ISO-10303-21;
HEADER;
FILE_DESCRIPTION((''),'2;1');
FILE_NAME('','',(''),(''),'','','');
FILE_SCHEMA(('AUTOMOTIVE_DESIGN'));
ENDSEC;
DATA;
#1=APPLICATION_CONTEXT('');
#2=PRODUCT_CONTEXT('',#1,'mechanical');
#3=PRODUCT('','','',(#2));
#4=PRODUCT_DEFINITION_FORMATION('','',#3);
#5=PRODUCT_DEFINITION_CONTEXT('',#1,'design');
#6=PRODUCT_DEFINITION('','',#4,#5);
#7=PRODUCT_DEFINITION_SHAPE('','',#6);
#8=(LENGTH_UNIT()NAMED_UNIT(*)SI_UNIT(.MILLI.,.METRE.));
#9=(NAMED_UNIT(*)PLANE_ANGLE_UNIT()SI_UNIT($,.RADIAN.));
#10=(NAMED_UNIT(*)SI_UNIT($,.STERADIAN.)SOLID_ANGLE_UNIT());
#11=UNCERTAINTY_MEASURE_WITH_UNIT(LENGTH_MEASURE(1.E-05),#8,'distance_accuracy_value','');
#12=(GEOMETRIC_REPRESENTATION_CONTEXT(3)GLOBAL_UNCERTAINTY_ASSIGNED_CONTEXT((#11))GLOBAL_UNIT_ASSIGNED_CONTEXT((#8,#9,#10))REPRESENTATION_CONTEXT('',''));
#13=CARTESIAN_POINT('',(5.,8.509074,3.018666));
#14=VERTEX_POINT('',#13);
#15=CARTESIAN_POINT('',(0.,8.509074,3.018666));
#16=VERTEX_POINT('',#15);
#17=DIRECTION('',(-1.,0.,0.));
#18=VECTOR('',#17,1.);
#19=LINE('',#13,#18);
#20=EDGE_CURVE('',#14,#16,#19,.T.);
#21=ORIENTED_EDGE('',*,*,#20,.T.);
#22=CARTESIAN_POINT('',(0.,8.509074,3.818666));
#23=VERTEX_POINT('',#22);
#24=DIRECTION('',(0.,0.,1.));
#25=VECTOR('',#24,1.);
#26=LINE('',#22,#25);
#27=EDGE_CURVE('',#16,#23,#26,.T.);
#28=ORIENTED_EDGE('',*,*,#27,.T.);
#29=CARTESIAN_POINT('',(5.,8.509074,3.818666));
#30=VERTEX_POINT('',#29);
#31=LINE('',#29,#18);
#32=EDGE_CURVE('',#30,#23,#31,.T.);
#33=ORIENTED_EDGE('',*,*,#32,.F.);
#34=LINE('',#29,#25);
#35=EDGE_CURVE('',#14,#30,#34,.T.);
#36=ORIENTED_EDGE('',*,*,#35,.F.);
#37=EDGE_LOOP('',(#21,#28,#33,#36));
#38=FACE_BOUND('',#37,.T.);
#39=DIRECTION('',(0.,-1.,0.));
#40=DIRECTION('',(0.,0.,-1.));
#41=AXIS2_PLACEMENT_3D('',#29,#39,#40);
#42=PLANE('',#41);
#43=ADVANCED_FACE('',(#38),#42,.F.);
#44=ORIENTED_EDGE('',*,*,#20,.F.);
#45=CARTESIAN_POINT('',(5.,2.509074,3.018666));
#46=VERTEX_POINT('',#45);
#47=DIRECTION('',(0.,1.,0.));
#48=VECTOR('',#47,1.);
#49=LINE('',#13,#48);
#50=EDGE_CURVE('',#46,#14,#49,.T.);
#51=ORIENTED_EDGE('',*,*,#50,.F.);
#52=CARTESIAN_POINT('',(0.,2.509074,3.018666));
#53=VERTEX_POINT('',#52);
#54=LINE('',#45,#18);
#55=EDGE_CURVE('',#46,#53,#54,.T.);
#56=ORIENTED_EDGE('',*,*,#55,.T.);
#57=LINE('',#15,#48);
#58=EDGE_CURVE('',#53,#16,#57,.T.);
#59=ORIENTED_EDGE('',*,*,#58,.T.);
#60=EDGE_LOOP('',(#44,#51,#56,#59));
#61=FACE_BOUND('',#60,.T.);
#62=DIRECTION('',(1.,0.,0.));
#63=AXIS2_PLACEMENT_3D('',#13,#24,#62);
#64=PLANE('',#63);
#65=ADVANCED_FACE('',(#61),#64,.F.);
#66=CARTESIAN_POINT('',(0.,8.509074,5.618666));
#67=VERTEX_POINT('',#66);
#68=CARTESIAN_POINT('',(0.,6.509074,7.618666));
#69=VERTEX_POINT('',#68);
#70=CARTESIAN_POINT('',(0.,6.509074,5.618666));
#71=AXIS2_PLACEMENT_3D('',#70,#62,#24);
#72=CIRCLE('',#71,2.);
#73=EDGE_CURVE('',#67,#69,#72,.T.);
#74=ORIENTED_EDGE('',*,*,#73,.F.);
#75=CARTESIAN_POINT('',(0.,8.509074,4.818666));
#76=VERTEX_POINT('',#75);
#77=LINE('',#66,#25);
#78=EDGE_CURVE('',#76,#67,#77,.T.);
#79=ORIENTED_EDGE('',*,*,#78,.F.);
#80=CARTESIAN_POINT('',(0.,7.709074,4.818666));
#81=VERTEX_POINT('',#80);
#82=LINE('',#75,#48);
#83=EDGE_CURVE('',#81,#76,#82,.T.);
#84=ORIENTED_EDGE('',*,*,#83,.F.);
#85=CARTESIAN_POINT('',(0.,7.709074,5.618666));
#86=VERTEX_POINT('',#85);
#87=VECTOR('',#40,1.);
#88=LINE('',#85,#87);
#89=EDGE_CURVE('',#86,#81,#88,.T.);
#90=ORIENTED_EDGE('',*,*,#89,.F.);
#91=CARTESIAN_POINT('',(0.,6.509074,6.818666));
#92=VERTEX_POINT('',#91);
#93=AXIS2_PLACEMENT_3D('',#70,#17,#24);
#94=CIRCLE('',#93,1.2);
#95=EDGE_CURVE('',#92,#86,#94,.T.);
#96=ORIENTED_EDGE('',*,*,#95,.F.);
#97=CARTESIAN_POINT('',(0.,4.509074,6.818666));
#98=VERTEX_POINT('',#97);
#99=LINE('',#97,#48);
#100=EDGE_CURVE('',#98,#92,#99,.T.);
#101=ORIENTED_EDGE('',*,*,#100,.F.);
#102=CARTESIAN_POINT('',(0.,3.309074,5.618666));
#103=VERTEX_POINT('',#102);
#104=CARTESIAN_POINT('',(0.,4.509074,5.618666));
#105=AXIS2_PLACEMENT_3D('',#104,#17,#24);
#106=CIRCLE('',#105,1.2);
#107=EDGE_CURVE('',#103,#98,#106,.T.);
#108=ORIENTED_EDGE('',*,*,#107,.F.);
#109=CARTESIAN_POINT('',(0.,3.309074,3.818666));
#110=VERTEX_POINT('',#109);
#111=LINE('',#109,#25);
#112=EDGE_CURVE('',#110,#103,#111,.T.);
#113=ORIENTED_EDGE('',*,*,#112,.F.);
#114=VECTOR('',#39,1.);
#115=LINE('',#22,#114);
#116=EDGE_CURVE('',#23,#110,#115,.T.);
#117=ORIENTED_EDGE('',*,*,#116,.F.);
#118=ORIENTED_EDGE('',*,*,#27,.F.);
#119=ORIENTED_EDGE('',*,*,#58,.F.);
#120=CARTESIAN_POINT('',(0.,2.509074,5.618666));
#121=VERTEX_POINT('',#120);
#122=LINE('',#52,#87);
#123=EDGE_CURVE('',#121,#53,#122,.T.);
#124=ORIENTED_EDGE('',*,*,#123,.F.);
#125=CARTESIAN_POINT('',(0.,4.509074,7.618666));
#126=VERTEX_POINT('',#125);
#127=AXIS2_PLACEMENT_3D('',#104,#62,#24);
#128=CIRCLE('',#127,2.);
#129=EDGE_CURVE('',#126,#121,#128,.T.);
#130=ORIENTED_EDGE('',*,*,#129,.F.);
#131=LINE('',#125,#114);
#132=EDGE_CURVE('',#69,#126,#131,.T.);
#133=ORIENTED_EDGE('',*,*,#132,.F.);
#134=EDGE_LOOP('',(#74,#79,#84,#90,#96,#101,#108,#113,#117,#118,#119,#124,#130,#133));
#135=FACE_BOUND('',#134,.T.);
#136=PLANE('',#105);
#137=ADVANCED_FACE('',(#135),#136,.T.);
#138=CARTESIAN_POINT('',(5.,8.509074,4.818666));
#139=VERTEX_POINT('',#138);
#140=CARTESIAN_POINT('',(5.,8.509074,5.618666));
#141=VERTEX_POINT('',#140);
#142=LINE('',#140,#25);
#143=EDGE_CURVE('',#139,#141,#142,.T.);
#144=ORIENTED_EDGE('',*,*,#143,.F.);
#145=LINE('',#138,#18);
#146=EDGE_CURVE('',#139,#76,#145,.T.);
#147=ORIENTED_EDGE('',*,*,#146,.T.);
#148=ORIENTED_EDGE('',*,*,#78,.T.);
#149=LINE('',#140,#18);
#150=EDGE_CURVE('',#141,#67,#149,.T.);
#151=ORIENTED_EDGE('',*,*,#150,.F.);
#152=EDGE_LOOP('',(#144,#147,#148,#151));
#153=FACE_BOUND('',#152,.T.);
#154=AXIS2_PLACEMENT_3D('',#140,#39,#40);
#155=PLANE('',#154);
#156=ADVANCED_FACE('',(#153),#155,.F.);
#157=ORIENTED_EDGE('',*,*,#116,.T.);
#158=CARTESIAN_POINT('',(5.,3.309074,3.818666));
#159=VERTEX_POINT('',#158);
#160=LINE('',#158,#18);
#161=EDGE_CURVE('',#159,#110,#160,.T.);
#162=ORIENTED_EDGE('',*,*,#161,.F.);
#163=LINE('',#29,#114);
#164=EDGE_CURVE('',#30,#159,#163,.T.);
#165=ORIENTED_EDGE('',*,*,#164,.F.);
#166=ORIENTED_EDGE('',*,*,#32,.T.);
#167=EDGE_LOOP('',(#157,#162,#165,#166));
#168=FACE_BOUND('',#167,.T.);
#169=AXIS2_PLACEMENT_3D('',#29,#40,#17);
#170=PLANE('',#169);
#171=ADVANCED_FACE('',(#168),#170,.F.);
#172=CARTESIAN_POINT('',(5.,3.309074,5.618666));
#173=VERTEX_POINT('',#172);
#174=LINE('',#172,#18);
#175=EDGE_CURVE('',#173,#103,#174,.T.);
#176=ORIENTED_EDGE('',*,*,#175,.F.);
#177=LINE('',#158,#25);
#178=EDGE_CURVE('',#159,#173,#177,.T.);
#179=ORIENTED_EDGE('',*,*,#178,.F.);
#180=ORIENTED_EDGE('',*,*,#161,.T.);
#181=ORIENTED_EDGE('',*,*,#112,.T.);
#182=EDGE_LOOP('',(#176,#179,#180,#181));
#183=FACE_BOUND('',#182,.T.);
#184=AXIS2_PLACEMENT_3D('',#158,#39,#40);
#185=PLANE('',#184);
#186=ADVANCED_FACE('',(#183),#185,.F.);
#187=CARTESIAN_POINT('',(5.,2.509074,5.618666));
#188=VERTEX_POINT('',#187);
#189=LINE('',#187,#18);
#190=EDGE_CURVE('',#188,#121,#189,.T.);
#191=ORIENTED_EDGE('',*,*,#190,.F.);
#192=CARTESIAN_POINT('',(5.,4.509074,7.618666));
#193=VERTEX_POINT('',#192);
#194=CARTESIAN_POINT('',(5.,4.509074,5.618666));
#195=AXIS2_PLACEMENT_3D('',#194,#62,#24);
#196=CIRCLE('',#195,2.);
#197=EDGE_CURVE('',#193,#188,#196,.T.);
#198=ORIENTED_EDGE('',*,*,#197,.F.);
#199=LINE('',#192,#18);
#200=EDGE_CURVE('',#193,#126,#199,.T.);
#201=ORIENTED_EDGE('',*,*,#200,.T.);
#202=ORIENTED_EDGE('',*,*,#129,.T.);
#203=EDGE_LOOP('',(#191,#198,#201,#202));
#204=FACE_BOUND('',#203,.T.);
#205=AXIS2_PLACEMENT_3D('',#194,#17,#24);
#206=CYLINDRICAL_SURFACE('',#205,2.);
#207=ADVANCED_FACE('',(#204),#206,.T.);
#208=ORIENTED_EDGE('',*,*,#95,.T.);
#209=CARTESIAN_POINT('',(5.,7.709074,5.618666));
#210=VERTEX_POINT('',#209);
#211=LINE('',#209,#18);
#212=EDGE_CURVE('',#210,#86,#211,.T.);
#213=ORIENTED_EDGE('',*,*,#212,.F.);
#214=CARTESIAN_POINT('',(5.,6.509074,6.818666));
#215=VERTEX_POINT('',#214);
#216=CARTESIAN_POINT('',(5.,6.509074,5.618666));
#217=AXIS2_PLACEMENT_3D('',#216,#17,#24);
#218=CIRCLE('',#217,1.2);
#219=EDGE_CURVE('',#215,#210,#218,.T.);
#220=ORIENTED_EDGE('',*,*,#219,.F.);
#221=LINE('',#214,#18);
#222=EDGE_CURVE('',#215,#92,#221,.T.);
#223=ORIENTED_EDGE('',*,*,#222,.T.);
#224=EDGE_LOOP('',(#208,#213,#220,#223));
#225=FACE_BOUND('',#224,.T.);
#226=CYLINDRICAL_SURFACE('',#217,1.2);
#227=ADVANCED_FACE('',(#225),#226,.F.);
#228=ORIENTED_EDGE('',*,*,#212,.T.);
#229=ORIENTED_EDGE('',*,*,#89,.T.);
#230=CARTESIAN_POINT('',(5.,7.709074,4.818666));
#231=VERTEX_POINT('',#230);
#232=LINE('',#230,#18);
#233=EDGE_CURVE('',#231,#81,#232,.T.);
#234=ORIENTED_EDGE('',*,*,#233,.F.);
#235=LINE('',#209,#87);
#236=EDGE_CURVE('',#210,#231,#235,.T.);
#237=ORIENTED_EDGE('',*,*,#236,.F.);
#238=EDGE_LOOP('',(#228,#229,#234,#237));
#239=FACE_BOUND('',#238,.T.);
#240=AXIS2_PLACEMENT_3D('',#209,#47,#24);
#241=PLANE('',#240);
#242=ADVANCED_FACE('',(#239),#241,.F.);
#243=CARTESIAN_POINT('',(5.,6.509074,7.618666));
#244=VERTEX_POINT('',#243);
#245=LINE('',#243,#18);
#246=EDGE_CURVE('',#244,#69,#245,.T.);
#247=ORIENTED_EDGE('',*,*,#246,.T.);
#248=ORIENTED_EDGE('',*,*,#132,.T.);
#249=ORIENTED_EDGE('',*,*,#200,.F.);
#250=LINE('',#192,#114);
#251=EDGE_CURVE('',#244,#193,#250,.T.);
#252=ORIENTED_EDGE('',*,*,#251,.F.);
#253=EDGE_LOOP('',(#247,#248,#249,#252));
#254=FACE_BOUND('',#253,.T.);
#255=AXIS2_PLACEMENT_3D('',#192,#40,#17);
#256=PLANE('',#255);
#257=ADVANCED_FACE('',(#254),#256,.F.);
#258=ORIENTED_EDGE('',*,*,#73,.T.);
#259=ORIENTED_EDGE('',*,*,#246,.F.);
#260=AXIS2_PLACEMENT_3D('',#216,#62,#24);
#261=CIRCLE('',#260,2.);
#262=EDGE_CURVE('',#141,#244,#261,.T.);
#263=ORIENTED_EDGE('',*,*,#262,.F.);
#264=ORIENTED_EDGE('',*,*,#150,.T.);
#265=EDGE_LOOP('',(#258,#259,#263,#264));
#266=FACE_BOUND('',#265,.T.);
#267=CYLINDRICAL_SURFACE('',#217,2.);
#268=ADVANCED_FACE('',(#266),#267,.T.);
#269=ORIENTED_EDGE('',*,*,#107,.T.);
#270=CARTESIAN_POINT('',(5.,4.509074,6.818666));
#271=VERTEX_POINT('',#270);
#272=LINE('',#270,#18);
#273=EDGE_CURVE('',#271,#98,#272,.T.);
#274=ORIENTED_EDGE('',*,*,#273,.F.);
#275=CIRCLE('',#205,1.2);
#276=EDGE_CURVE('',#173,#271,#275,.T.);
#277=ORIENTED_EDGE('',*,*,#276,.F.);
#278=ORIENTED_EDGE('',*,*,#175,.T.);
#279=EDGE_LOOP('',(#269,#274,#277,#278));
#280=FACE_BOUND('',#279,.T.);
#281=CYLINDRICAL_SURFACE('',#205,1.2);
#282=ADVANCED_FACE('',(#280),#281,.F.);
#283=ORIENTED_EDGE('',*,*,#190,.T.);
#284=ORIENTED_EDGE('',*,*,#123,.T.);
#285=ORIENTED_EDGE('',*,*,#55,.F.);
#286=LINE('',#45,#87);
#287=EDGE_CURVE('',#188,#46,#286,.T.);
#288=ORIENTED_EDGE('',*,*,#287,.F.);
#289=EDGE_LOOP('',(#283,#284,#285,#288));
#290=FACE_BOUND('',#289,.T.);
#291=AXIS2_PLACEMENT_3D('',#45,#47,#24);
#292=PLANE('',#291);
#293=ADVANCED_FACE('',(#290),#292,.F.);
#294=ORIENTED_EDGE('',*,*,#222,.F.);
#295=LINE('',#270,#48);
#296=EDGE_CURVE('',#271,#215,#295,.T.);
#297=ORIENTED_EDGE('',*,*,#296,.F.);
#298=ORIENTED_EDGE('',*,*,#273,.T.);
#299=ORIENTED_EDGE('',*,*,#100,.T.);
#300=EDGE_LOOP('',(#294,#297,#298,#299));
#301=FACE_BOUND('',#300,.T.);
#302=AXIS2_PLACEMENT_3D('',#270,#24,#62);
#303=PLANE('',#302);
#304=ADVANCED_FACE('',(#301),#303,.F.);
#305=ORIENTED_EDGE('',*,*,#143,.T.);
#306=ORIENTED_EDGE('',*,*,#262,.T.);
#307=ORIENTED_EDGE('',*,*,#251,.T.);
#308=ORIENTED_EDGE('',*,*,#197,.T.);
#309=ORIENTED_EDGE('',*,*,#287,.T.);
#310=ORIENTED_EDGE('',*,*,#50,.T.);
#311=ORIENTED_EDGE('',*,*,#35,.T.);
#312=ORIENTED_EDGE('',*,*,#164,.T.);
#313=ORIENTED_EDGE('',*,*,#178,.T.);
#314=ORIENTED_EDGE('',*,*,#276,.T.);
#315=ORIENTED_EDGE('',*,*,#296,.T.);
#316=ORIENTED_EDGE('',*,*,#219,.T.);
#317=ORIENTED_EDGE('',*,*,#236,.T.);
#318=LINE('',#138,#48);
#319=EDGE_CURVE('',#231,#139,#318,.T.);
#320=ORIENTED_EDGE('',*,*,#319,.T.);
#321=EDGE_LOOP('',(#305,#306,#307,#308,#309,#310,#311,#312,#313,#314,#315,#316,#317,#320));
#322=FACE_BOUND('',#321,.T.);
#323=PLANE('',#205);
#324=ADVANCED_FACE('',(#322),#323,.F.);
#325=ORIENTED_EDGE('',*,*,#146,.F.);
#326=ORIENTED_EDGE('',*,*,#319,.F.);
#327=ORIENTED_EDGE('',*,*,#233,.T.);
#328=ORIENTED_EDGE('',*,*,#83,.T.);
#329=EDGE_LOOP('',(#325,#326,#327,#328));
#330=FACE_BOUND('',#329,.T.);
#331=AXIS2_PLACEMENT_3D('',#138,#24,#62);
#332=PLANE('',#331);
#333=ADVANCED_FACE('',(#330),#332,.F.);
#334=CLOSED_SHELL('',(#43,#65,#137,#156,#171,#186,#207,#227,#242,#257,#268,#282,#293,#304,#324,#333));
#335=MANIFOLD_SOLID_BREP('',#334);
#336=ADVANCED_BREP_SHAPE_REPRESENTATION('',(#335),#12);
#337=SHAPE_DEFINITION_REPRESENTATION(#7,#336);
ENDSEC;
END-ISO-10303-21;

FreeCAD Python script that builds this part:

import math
import FreeCAD as App
import Part
import Sketcher

V = App.Vector

doc = App.newDocument("Part")
body = doc.addObject("PartDesign::Body", "Body")

# Sketch on YZ plane
sketch1 = body.newObject("Sketcher::SketchObject", "Sketch")
sketch1.AttachmentSupport = (doc.getObject("YZ_Plane"), [""])
sketch1.MapMode = "FlatFace"
sketch1.addGeometry([
    Part.LineSegment(V(2.509074, 3.018666, 0), V(8.509074, 3.018666, 0)),  # 0
    Part.LineSegment(V(8.509074, 3.018666, 0), V(8.509074, 3.818666, 0)),  # 1
    Part.LineSegment(V(8.509074, 3.818666, 0), V(3.309074, 3.818666, 0)),  # 2
    Part.LineSegment(V(3.309074, 3.818666, 0), V(3.309074, 5.618666, 0)),  # 3
    Part.ArcOfCircle(Part.Circle(V(4.509074, 5.618666, 0), V(0, 0, 1), 1.2), math.radians(90), math.radians(180)),  # 4
    Part.LineSegment(V(4.509074, 6.818666, 0), V(6.509074, 6.818666, 0)),  # 5
    Part.ArcOfCircle(Part.Circle(V(6.509074, 5.618666, 0), V(0, 0, 1), 1.2), math.radians(0), math.radians(90)),  # 6
    Part.LineSegment(V(7.709074, 5.618666, 0), V(7.709074, 4.818666, 0)),  # 7
    Part.LineSegment(V(7.709074, 4.818666, 0), V(8.509074, 4.818666, 0)),  # 8
    Part.LineSegment(V(8.509074, 4.818666, 0), V(8.509074, 5.618666, 0)),  # 9
    Part.ArcOfCircle(Part.Circle(V(6.509074, 5.618666, 0), V(0, 0, 1), 2), math.radians(0), math.radians(90)),  # 10
    Part.LineSegment(V(6.509074, 7.618666, 0), V(4.509074, 7.618666, 0)),  # 11
    Part.ArcOfCircle(Part.Circle(V(4.509074, 5.618666, 0), V(0, 0, 1), 2), math.radians(90), math.radians(180)),  # 12
    Part.LineSegment(V(2.509074, 5.618666, 0), V(2.509074, 3.018666, 0)),  # 13
], False)
sketch1.addConstraint([
    Sketcher.Constraint("Coincident", 0, 2, 1, 1),
    Sketcher.Constraint("Coincident", 1, 2, 2, 1),
    Sketcher.Constraint("Coincident", 2, 2, 3, 1),
    Sketcher.Constraint("Tangent", 3, 2, 4, 2),
    Sketcher.Constraint("Tangent", 4, 1, 5, 1),
    Sketcher.Constraint("Tangent", 5, 2, 6, 2),
    Sketcher.Constraint("Tangent", 6, 1, 7, 1),
    Sketcher.Constraint("Coincident", 7, 2, 8, 1),
    Sketcher.Constraint("Coincident", 8, 2, 9, 1),
    Sketcher.Constraint("Tangent", 9, 2, 10, 1),
    Sketcher.Constraint("Tangent", 10, 2, 11, 1),
    Sketcher.Constraint("Tangent", 11, 2, 12, 1),
    Sketcher.Constraint("Tangent", 12, 2, 13, 1),
    Sketcher.Constraint("Coincident", 13, 2, 0, 1),
    Sketcher.Constraint("Horizontal", 0),
    Sketcher.Constraint("Vertical", 1),
    Sketcher.Constraint("Horizontal", 2),
    Sketcher.Constraint("Vertical", 3),
    Sketcher.Constraint("Horizontal", 5),
    Sketcher.Constraint("Vertical", 7),
    Sketcher.Constraint("Horizontal", 8),
    Sketcher.Constraint("Vertical", 9),
    Sketcher.Constraint("Horizontal", 11),
    Sketcher.Constraint("Vertical", 13),
    Sketcher.Constraint("Coincident", 10, 3, 6, 3),
    Sketcher.Constraint("Coincident", 12, 3, 4, 3),
    Sketcher.Constraint("Equal", 4, 6),
    Sketcher.Constraint("Vertical", 1, 2, 8, 2),
    Sketcher.Constraint("Equal", 8, 1),
    Sketcher.Constraint("Equal", 1, 7),
    Sketcher.Constraint("Radius", 10, 2.0),
    Sketcher.Constraint("Radius", 4, 1.2),
    Sketcher.Constraint("DistanceX", 0, 1, 0, 2, 6.0),
    Sketcher.Constraint("DistanceY", 3, 1, 3, 2, 1.8),
    Sketcher.Constraint("DistanceX", -1, 1, 4, 3, 4.509074),
    Sketcher.Constraint("DistanceY", -1, 1, 4, 3, 5.618666),
])
pad1 = body.newObject("PartDesign::Pad", "Pad")
pad1.Profile = sketch1
pad1.Length = 5

doc.recompute()
